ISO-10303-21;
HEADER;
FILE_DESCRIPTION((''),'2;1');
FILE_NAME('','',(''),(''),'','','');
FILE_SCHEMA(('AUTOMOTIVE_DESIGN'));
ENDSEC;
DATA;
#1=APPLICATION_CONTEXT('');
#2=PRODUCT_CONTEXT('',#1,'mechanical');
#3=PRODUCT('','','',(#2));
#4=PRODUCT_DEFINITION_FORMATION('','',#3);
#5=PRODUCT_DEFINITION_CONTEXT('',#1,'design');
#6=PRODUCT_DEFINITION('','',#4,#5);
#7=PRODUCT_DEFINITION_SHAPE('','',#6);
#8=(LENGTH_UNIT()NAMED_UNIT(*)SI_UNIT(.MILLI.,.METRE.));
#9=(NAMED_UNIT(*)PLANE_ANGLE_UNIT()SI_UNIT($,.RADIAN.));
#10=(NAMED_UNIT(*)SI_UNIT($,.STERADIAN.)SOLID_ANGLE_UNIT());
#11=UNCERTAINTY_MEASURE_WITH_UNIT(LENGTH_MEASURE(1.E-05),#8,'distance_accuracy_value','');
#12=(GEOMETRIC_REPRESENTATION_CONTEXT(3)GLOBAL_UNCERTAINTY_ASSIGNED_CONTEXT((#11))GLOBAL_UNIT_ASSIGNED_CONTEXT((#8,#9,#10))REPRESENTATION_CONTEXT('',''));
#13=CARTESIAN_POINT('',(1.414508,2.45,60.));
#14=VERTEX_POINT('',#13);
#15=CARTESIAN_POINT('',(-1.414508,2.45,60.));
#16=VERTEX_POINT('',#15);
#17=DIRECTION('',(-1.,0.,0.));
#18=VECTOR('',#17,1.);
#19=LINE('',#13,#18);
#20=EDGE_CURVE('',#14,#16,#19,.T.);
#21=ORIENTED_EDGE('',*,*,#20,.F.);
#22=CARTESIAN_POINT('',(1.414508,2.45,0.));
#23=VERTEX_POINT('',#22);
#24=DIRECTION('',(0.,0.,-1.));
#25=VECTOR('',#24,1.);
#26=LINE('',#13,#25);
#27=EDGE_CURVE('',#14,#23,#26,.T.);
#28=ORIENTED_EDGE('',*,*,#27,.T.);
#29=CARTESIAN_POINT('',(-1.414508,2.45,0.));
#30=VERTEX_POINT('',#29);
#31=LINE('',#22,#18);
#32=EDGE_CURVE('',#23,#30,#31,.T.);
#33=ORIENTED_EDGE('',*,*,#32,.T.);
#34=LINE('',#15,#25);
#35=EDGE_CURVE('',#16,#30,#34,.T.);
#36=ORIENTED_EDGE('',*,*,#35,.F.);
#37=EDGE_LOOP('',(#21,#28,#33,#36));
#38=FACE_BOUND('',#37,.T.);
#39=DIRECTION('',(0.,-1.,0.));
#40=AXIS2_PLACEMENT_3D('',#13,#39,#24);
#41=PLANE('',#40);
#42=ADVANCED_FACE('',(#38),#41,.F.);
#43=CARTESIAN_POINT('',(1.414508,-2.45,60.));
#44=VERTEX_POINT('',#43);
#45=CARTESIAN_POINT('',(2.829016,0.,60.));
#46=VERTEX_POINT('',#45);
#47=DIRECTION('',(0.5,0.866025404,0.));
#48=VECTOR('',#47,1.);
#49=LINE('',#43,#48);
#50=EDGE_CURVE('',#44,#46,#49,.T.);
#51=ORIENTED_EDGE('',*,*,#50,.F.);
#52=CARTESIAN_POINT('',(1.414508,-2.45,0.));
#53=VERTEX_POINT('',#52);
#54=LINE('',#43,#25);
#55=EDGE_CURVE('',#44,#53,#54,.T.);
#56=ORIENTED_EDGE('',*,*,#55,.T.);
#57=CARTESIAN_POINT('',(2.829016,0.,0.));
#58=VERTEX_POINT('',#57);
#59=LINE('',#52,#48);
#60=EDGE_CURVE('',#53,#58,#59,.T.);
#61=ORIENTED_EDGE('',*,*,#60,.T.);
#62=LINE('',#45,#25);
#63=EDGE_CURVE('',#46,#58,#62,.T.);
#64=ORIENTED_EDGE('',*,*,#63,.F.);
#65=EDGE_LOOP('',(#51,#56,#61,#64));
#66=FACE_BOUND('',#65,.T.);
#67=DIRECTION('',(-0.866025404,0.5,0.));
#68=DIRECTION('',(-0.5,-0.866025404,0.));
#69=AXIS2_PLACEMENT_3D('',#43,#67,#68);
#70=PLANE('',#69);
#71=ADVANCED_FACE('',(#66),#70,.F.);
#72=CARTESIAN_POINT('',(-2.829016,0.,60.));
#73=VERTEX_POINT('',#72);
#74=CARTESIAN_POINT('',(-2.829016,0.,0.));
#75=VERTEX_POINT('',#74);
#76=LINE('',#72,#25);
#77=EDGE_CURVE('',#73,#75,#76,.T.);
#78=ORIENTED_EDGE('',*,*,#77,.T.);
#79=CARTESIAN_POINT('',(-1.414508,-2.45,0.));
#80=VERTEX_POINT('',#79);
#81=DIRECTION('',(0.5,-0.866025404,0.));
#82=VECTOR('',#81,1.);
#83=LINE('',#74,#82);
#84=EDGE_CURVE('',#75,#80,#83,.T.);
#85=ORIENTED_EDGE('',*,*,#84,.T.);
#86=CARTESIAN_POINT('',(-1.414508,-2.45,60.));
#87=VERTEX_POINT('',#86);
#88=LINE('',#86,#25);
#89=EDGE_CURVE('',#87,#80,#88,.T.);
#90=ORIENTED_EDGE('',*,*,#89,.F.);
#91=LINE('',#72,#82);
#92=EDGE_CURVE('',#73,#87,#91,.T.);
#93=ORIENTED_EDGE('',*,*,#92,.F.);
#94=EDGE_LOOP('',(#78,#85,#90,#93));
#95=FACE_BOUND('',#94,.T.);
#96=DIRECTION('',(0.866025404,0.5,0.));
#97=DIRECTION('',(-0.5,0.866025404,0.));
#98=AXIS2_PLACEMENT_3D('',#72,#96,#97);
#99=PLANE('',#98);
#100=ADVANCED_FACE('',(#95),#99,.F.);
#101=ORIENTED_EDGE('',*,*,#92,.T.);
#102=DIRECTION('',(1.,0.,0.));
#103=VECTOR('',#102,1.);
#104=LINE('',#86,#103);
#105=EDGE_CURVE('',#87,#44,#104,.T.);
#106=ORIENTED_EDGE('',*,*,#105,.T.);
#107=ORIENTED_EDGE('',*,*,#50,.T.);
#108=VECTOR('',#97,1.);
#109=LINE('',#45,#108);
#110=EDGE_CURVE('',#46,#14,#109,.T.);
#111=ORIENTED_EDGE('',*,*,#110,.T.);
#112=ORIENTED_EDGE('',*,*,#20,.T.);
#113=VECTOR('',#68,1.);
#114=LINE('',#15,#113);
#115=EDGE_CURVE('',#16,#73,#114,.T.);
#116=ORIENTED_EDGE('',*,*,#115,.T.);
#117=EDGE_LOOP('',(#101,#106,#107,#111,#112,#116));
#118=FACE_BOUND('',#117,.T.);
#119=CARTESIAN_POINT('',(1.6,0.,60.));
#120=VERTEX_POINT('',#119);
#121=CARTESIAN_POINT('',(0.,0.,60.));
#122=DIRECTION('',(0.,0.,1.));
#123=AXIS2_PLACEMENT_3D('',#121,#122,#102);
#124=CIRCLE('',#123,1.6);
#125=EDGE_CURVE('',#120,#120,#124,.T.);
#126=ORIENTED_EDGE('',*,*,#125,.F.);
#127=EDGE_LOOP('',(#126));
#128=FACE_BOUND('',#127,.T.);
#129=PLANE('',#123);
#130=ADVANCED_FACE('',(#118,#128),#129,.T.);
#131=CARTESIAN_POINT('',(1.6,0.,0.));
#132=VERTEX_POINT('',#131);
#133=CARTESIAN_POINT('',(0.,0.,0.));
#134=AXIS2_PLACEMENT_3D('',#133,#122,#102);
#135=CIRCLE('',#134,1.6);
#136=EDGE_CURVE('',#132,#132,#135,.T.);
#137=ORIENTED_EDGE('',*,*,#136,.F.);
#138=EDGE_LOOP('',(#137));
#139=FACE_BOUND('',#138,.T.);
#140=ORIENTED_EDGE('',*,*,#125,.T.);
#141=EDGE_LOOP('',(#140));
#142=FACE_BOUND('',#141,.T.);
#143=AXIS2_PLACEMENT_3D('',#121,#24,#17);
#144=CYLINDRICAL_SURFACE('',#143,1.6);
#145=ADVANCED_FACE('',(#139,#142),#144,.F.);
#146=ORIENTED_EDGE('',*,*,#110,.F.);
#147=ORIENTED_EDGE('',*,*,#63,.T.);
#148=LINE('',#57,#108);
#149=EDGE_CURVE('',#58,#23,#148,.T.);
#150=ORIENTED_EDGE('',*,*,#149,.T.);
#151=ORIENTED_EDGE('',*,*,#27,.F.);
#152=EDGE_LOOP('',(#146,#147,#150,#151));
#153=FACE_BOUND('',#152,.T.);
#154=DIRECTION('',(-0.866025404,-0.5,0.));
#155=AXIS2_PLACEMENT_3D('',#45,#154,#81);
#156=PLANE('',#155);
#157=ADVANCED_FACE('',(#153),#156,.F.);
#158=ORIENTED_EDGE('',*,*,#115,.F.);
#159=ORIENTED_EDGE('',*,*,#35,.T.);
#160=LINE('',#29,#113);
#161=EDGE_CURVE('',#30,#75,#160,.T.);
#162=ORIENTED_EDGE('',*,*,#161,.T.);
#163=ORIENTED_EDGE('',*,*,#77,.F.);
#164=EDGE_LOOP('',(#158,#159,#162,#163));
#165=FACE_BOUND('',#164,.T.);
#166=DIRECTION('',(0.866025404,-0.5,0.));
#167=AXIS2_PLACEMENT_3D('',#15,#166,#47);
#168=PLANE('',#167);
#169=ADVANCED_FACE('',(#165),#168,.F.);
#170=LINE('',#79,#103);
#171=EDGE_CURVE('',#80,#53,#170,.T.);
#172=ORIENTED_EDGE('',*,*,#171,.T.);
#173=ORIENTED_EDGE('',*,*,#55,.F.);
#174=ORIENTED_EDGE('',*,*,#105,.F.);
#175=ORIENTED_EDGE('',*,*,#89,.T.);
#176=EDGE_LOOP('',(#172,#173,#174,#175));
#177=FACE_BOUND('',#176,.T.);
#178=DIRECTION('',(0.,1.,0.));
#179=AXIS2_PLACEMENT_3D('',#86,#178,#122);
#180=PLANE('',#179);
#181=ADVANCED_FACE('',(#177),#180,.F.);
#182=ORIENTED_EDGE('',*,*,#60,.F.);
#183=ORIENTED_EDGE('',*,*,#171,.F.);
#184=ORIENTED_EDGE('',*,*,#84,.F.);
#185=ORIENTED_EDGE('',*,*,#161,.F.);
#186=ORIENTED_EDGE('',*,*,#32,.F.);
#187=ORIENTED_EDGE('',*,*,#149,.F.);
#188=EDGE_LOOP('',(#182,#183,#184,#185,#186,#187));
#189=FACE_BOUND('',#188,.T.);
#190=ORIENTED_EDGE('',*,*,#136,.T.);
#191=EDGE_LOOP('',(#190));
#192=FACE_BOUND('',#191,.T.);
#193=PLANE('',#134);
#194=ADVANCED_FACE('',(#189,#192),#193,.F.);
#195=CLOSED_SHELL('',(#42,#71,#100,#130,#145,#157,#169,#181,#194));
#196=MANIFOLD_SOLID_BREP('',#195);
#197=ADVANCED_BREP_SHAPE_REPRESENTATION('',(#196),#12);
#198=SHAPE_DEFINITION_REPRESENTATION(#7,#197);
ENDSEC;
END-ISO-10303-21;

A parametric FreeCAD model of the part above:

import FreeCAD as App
import Part
import Sketcher
from FreeCAD import Vector
Q = App.Units.Quantity


def add_polygon(sketch, points):
    """Adds a closed chain of lines whose ends are joined by coincident constraints."""
    first, n = sketch.GeometryCount, len(points)
    for a, b in zip(points, points[1:] + points[:1]):
        sketch.addGeometry(Part.LineSegment(App.Vector(*a, 0), App.Vector(*b, 0)), False)
    for i in range(n):
        sketch.addConstraint(Sketcher.Constraint("Coincident", first + i, 2, first + (i + 1) % n, 1))

doc = App.newDocument("Part")
body = doc.addObject("PartDesign::Body", "Body")

sketch1 = body.newObject("Sketcher::SketchObject", "Sketch")
sketch1.AttachmentSupport = (doc.getObject("XY_Plane"), [""])
sketch1.MapMode = "FlatFace"
add_polygon(sketch1, [(2.8, 0), (1.4, 2.5), (-1.4, 2.5), (-2.8, 0), (-1.4, -2.5), (1.4, -2.5)])
sketch1.addGeometry(Part.Circle(Vector(0, 0, 0), Vector(0, 0, 1), 1.6), False)
sketch1.addConstraint([
    Sketcher.Constraint("Horizontal", 1),
    Sketcher.Constraint("Horizontal", 4),
    Sketcher.Constraint("Coincident", 6, 3, -1, 1),
    Sketcher.Constraint("Symmetric", 0, 2, 3, 2, -1, 1),
    Sketcher.Constraint("Symmetric", 2, 2, 5, 2, -1, 1),
    Sketcher.Constraint("PointOnObject", 2, 2, -1),
    Sketcher.Constraint("Parallel", 2, 5),
    Sketcher.Constraint("Vertical", 1, 2, 3, 2),
    Sketcher.Constraint("Diameter", 6, 3.2),
    Sketcher.Constraint("Angle", 0, Q("120 deg")),
    Sketcher.Constraint("DistanceY", 3, 2, 1, 2, 4.9),
    Sketcher.Constraint("DistanceX", 1, 2, 1, 1, 2.829016),
])
pad1 = body.newObject("PartDesign::Pad", "Pad")
pad1.Profile = sketch1
pad1.Length = 60

doc.recompute()
